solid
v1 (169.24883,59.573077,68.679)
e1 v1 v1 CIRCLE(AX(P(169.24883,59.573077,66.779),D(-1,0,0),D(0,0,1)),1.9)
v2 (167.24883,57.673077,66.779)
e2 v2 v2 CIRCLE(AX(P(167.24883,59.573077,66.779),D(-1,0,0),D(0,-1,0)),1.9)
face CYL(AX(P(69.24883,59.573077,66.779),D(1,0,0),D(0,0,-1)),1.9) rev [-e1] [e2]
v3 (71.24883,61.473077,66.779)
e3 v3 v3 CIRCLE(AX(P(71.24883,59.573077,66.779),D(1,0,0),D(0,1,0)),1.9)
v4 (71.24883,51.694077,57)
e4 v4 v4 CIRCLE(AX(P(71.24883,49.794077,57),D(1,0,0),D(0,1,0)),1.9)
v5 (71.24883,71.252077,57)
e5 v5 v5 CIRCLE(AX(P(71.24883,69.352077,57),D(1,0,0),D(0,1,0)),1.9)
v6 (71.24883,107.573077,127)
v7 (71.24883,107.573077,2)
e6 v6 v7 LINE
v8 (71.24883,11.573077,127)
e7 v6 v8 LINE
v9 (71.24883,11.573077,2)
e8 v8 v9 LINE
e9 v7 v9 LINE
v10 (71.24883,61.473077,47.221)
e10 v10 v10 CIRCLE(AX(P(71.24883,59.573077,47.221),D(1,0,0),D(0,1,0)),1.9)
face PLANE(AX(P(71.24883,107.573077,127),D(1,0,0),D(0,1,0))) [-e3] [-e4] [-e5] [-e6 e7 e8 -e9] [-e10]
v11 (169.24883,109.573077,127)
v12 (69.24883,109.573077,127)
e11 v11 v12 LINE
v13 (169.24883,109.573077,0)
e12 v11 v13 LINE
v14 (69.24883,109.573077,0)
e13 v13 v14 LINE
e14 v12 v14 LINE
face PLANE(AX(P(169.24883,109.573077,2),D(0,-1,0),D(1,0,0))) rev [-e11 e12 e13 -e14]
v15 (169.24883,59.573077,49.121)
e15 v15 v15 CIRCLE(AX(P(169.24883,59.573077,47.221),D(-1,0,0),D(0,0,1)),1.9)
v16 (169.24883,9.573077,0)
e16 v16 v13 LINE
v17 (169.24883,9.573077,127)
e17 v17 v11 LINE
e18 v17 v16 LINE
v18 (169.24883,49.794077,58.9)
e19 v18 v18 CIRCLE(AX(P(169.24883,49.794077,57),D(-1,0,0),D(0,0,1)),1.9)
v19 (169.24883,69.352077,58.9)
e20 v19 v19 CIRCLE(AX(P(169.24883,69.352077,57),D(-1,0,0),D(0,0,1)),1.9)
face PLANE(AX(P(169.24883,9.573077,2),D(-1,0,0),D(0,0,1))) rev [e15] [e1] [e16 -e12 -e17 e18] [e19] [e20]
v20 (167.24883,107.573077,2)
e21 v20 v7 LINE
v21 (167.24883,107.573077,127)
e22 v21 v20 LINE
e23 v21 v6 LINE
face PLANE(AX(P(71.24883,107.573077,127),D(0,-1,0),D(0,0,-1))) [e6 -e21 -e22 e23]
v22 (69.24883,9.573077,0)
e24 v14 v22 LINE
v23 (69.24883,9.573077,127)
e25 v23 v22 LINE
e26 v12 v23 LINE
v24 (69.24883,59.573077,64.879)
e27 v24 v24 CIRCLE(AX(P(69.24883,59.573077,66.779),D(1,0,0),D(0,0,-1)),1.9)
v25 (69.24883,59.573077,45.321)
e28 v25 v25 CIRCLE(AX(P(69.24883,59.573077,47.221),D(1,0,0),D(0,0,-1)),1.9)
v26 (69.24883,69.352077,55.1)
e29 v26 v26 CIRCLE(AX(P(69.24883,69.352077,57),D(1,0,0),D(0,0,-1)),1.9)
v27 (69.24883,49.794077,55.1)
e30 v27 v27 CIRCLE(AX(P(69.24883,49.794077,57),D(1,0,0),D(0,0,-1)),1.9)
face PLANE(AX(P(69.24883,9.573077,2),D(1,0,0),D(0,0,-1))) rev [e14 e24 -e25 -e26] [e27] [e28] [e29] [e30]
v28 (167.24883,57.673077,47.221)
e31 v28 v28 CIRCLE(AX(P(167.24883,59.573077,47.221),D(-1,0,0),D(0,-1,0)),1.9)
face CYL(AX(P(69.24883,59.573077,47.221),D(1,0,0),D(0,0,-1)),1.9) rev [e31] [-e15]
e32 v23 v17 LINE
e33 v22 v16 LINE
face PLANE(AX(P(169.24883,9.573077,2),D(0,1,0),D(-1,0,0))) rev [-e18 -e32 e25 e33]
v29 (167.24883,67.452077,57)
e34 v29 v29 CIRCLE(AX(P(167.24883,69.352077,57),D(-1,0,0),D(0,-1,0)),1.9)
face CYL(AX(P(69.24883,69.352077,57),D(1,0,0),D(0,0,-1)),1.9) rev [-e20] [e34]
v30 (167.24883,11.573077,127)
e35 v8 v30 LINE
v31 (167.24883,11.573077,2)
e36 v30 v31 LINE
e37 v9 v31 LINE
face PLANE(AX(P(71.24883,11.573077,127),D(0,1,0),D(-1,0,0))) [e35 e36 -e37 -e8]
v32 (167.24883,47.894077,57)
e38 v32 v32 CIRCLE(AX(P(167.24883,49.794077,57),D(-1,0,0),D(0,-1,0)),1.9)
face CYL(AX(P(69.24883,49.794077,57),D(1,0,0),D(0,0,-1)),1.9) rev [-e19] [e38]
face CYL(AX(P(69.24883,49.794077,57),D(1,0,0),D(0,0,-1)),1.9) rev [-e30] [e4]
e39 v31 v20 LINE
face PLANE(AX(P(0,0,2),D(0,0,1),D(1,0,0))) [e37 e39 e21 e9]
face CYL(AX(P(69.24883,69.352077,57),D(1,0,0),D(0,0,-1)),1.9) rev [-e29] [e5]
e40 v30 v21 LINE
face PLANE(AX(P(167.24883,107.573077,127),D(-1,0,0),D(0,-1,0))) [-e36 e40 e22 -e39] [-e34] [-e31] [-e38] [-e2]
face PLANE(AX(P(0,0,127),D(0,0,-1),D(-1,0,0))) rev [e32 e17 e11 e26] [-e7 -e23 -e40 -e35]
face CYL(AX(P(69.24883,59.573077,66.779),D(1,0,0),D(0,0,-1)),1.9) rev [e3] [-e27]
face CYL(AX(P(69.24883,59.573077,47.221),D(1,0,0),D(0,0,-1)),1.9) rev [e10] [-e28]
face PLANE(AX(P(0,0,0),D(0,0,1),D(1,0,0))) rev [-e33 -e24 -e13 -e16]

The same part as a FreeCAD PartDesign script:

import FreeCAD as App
import Part
import Sketcher
from FreeCAD import Vector
Q = App.Units.Quantity


def add_polygon(sketch, points):
    """Adds a closed chain of lines whose ends are joined by coincident constraints."""
    first, n = sketch.GeometryCount, len(points)
    for a, b in zip(points, points[1:] + points[:1]):
        sketch.addGeometry(Part.LineSegment(App.Vector(*a, 0), App.Vector(*b, 0)), False)
    for i in range(n):
        sketch.addConstraint(Sketcher.Constraint("Coincident", first + i, 2, first + (i + 1) % n, 1))

doc = App.newDocument("Part")
body = doc.addObject("PartDesign::Body", "Body")

# Sketch on XY plane
sketch1 = body.newObject("Sketcher::SketchObject", "Sketch")
sketch1.AttachmentSupport = (doc.getObject("XY_Plane"), [""])
sketch1.MapMode = "FlatFace"
add_polygon(sketch1, [(69, 110), (69, 10), (169, 10), (169, 110)])  # lines 0-3
sketch1.addConstraint(Sketcher.Constraint("Vertical", 0))
sketch1.addConstraint(Sketcher.Constraint("Horizontal", 1))
sketch1.addConstraint(Sketcher.Constraint("Vertical", 2))
sketch1.addConstraint(Sketcher.Constraint("Horizontal", 3))
sketch1.addConstraint(Sketcher.Constraint("Equal", 3, 0))
sketch1.addConstraint(Sketcher.Constraint("DistanceX", 1, 1, 1, 2, Q("100 mm")))
sketch1.addConstraint(Sketcher.Constraint("DistanceX", -1, 1, 0, 2, Q("69.24883 mm")))
sketch1.addConstraint(Sketcher.Constraint("DistanceY", -1, 1, 0, 2, Q("9.573077 mm")))
pad1 = body.newObject("PartDesign::Pad", "Pad")
pad1.Profile = sketch1
pad1.Length = 2

# Sketch on XY plane
sketch2 = body.newObject("Sketcher::SketchObject", "Sketch001")
sketch2.AttachmentSupport = (doc.getObject("XY_Plane"), [""])
sketch2.MapMode = "FlatFace"
sketch2.AttachmentOffset = App.Placement(Vector(0, 0, 2), App.Rotation())
add_polygon(sketch2, [(69, 110), (69, 10), (169, 10), (169, 110)])  # lines 0-3
add_polygon(sketch2, [(167, 12), (71, 12), (71, 108), (167, 108)])  # lines 4-7
sketch2.addConstraint(Sketcher.Constraint("Vertical", 0))
sketch2.addConstraint(Sketcher.Constraint("Horizontal", 1))
sketch2.addConstraint(Sketcher.Constraint("Vertical", 2))
sketch2.addConstraint(Sketcher.Constraint("Horizontal", 3))
sketch2.addConstraint(Sketcher.Constraint("Horizontal", 4))
sketch2.addConstraint(Sketcher.Constraint("Vertical", 5))
sketch2.addConstraint(Sketcher.Constraint("Horizontal", 6))
sketch2.addConstraint(Sketcher.Constraint("Vertical", 7))
sketch2.addConstraint(Sketcher.Constraint("Equal", 3, 0))
sketch2.addConstraint(Sketcher.Constraint("Equal", 6, 5))
sketch2.addConstraint(Sketcher.Constraint("DistanceX", 1, 1, 1, 2, Q("100 mm")))
sketch2.addConstraint(Sketcher.Constraint("DistanceX", 4, 2, 4, 1, Q("96 mm")))
sketch2.addConstraint(Sketcher.Constraint("DistanceX", 0, 2, 4, 2, Q("2 mm")))
sketch2.addConstraint(Sketcher.Constraint("DistanceY", 0, 2, 4, 2, Q("2 mm")))
sketch2.addConstraint(Sketcher.Constraint("DistanceX", -1, 1, 0, 2, Q("69.24883 mm")))
sketch2.addConstraint(Sketcher.Constraint("DistanceY", -1, 1, 0, 2, Q("9.573077 mm")))
pad2 = body.newObject("PartDesign::Pad", "Pad001")
pad2.Profile = sketch2
pad2.Length = 125

# Sketch on YZ plane
sketch3 = body.newObject("Sketcher::SketchObject", "Sketch002")
sketch3.AttachmentSupport = (doc.getObject("YZ_Plane"), [""])
sketch3.MapMode = "FlatFace"
sketch3.AttachmentOffset = App.Placement(Vector(0, 0, 169.24883), App.Rotation())
sketch3.addGeometry(Part.Circle(Vector(69.4, 57, 0), Vector(0, 0, 1), 1.9), False)
sketch3.addGeometry(Part.Circle(Vector(59.6, 47.2, 0), Vector(0, 0, 1), 1.9), False)
sketch3.addGeometry(Part.Circle(Vector(49.8, 57, 0), Vector(0, 0, 1), 1.9), False)
sketch3.addGeometry(Part.Circle(Vector(59.6, 66.8, 0), Vector(0, 0, 1), 1.9), False)
sketch3.addConstraint(Sketcher.Constraint("Equal", 0, 1))
sketch3.addConstraint(Sketcher.Constraint("Equal", 1, 2))
sketch3.addConstraint(Sketcher.Constraint("Equal", 2, 3))
sketch3.addConstraint(Sketcher.Constraint("Horizontal", 0, 3, 2, 3))
sketch3.addConstraint(Sketcher.Constraint("Vertical", 1, 3, 3, 3))
sketch3.addConstraint(Sketcher.Constraint("Diameter", 0, Q("3.8 mm")))
sketch3.addConstraint(Sketcher.Constraint("DistanceY", -1, 1, 0, 3, Q("57 mm")))
sketch3.addConstraint(Sketcher.Constraint("DistanceY", -1, 1, 1, 3, Q("47.221 mm")))
sketch3.addConstraint(Sketcher.Constraint("DistanceY", -1, 1, 3, 3, Q("66.779 mm")))
sketch3.addConstraint(Sketcher.Constraint("DistanceX", 1, 3, 0, 3, Q("9.779 mm")))
sketch3.addConstraint(Sketcher.Constraint("DistanceX", 2, 3, 1, 3, Q("9.779 mm")))
sketch3.addConstraint(Sketcher.Constraint("DistanceX", -1, 1, 0, 3, Q("69.352077 mm")))
pocket1 = body.newObject("PartDesign::Pocket", "Pocket")
pocket1.Profile = sketch3
pocket1.Type = "ThroughAll"
pocket1.Midplane = True

doc.recompute()
